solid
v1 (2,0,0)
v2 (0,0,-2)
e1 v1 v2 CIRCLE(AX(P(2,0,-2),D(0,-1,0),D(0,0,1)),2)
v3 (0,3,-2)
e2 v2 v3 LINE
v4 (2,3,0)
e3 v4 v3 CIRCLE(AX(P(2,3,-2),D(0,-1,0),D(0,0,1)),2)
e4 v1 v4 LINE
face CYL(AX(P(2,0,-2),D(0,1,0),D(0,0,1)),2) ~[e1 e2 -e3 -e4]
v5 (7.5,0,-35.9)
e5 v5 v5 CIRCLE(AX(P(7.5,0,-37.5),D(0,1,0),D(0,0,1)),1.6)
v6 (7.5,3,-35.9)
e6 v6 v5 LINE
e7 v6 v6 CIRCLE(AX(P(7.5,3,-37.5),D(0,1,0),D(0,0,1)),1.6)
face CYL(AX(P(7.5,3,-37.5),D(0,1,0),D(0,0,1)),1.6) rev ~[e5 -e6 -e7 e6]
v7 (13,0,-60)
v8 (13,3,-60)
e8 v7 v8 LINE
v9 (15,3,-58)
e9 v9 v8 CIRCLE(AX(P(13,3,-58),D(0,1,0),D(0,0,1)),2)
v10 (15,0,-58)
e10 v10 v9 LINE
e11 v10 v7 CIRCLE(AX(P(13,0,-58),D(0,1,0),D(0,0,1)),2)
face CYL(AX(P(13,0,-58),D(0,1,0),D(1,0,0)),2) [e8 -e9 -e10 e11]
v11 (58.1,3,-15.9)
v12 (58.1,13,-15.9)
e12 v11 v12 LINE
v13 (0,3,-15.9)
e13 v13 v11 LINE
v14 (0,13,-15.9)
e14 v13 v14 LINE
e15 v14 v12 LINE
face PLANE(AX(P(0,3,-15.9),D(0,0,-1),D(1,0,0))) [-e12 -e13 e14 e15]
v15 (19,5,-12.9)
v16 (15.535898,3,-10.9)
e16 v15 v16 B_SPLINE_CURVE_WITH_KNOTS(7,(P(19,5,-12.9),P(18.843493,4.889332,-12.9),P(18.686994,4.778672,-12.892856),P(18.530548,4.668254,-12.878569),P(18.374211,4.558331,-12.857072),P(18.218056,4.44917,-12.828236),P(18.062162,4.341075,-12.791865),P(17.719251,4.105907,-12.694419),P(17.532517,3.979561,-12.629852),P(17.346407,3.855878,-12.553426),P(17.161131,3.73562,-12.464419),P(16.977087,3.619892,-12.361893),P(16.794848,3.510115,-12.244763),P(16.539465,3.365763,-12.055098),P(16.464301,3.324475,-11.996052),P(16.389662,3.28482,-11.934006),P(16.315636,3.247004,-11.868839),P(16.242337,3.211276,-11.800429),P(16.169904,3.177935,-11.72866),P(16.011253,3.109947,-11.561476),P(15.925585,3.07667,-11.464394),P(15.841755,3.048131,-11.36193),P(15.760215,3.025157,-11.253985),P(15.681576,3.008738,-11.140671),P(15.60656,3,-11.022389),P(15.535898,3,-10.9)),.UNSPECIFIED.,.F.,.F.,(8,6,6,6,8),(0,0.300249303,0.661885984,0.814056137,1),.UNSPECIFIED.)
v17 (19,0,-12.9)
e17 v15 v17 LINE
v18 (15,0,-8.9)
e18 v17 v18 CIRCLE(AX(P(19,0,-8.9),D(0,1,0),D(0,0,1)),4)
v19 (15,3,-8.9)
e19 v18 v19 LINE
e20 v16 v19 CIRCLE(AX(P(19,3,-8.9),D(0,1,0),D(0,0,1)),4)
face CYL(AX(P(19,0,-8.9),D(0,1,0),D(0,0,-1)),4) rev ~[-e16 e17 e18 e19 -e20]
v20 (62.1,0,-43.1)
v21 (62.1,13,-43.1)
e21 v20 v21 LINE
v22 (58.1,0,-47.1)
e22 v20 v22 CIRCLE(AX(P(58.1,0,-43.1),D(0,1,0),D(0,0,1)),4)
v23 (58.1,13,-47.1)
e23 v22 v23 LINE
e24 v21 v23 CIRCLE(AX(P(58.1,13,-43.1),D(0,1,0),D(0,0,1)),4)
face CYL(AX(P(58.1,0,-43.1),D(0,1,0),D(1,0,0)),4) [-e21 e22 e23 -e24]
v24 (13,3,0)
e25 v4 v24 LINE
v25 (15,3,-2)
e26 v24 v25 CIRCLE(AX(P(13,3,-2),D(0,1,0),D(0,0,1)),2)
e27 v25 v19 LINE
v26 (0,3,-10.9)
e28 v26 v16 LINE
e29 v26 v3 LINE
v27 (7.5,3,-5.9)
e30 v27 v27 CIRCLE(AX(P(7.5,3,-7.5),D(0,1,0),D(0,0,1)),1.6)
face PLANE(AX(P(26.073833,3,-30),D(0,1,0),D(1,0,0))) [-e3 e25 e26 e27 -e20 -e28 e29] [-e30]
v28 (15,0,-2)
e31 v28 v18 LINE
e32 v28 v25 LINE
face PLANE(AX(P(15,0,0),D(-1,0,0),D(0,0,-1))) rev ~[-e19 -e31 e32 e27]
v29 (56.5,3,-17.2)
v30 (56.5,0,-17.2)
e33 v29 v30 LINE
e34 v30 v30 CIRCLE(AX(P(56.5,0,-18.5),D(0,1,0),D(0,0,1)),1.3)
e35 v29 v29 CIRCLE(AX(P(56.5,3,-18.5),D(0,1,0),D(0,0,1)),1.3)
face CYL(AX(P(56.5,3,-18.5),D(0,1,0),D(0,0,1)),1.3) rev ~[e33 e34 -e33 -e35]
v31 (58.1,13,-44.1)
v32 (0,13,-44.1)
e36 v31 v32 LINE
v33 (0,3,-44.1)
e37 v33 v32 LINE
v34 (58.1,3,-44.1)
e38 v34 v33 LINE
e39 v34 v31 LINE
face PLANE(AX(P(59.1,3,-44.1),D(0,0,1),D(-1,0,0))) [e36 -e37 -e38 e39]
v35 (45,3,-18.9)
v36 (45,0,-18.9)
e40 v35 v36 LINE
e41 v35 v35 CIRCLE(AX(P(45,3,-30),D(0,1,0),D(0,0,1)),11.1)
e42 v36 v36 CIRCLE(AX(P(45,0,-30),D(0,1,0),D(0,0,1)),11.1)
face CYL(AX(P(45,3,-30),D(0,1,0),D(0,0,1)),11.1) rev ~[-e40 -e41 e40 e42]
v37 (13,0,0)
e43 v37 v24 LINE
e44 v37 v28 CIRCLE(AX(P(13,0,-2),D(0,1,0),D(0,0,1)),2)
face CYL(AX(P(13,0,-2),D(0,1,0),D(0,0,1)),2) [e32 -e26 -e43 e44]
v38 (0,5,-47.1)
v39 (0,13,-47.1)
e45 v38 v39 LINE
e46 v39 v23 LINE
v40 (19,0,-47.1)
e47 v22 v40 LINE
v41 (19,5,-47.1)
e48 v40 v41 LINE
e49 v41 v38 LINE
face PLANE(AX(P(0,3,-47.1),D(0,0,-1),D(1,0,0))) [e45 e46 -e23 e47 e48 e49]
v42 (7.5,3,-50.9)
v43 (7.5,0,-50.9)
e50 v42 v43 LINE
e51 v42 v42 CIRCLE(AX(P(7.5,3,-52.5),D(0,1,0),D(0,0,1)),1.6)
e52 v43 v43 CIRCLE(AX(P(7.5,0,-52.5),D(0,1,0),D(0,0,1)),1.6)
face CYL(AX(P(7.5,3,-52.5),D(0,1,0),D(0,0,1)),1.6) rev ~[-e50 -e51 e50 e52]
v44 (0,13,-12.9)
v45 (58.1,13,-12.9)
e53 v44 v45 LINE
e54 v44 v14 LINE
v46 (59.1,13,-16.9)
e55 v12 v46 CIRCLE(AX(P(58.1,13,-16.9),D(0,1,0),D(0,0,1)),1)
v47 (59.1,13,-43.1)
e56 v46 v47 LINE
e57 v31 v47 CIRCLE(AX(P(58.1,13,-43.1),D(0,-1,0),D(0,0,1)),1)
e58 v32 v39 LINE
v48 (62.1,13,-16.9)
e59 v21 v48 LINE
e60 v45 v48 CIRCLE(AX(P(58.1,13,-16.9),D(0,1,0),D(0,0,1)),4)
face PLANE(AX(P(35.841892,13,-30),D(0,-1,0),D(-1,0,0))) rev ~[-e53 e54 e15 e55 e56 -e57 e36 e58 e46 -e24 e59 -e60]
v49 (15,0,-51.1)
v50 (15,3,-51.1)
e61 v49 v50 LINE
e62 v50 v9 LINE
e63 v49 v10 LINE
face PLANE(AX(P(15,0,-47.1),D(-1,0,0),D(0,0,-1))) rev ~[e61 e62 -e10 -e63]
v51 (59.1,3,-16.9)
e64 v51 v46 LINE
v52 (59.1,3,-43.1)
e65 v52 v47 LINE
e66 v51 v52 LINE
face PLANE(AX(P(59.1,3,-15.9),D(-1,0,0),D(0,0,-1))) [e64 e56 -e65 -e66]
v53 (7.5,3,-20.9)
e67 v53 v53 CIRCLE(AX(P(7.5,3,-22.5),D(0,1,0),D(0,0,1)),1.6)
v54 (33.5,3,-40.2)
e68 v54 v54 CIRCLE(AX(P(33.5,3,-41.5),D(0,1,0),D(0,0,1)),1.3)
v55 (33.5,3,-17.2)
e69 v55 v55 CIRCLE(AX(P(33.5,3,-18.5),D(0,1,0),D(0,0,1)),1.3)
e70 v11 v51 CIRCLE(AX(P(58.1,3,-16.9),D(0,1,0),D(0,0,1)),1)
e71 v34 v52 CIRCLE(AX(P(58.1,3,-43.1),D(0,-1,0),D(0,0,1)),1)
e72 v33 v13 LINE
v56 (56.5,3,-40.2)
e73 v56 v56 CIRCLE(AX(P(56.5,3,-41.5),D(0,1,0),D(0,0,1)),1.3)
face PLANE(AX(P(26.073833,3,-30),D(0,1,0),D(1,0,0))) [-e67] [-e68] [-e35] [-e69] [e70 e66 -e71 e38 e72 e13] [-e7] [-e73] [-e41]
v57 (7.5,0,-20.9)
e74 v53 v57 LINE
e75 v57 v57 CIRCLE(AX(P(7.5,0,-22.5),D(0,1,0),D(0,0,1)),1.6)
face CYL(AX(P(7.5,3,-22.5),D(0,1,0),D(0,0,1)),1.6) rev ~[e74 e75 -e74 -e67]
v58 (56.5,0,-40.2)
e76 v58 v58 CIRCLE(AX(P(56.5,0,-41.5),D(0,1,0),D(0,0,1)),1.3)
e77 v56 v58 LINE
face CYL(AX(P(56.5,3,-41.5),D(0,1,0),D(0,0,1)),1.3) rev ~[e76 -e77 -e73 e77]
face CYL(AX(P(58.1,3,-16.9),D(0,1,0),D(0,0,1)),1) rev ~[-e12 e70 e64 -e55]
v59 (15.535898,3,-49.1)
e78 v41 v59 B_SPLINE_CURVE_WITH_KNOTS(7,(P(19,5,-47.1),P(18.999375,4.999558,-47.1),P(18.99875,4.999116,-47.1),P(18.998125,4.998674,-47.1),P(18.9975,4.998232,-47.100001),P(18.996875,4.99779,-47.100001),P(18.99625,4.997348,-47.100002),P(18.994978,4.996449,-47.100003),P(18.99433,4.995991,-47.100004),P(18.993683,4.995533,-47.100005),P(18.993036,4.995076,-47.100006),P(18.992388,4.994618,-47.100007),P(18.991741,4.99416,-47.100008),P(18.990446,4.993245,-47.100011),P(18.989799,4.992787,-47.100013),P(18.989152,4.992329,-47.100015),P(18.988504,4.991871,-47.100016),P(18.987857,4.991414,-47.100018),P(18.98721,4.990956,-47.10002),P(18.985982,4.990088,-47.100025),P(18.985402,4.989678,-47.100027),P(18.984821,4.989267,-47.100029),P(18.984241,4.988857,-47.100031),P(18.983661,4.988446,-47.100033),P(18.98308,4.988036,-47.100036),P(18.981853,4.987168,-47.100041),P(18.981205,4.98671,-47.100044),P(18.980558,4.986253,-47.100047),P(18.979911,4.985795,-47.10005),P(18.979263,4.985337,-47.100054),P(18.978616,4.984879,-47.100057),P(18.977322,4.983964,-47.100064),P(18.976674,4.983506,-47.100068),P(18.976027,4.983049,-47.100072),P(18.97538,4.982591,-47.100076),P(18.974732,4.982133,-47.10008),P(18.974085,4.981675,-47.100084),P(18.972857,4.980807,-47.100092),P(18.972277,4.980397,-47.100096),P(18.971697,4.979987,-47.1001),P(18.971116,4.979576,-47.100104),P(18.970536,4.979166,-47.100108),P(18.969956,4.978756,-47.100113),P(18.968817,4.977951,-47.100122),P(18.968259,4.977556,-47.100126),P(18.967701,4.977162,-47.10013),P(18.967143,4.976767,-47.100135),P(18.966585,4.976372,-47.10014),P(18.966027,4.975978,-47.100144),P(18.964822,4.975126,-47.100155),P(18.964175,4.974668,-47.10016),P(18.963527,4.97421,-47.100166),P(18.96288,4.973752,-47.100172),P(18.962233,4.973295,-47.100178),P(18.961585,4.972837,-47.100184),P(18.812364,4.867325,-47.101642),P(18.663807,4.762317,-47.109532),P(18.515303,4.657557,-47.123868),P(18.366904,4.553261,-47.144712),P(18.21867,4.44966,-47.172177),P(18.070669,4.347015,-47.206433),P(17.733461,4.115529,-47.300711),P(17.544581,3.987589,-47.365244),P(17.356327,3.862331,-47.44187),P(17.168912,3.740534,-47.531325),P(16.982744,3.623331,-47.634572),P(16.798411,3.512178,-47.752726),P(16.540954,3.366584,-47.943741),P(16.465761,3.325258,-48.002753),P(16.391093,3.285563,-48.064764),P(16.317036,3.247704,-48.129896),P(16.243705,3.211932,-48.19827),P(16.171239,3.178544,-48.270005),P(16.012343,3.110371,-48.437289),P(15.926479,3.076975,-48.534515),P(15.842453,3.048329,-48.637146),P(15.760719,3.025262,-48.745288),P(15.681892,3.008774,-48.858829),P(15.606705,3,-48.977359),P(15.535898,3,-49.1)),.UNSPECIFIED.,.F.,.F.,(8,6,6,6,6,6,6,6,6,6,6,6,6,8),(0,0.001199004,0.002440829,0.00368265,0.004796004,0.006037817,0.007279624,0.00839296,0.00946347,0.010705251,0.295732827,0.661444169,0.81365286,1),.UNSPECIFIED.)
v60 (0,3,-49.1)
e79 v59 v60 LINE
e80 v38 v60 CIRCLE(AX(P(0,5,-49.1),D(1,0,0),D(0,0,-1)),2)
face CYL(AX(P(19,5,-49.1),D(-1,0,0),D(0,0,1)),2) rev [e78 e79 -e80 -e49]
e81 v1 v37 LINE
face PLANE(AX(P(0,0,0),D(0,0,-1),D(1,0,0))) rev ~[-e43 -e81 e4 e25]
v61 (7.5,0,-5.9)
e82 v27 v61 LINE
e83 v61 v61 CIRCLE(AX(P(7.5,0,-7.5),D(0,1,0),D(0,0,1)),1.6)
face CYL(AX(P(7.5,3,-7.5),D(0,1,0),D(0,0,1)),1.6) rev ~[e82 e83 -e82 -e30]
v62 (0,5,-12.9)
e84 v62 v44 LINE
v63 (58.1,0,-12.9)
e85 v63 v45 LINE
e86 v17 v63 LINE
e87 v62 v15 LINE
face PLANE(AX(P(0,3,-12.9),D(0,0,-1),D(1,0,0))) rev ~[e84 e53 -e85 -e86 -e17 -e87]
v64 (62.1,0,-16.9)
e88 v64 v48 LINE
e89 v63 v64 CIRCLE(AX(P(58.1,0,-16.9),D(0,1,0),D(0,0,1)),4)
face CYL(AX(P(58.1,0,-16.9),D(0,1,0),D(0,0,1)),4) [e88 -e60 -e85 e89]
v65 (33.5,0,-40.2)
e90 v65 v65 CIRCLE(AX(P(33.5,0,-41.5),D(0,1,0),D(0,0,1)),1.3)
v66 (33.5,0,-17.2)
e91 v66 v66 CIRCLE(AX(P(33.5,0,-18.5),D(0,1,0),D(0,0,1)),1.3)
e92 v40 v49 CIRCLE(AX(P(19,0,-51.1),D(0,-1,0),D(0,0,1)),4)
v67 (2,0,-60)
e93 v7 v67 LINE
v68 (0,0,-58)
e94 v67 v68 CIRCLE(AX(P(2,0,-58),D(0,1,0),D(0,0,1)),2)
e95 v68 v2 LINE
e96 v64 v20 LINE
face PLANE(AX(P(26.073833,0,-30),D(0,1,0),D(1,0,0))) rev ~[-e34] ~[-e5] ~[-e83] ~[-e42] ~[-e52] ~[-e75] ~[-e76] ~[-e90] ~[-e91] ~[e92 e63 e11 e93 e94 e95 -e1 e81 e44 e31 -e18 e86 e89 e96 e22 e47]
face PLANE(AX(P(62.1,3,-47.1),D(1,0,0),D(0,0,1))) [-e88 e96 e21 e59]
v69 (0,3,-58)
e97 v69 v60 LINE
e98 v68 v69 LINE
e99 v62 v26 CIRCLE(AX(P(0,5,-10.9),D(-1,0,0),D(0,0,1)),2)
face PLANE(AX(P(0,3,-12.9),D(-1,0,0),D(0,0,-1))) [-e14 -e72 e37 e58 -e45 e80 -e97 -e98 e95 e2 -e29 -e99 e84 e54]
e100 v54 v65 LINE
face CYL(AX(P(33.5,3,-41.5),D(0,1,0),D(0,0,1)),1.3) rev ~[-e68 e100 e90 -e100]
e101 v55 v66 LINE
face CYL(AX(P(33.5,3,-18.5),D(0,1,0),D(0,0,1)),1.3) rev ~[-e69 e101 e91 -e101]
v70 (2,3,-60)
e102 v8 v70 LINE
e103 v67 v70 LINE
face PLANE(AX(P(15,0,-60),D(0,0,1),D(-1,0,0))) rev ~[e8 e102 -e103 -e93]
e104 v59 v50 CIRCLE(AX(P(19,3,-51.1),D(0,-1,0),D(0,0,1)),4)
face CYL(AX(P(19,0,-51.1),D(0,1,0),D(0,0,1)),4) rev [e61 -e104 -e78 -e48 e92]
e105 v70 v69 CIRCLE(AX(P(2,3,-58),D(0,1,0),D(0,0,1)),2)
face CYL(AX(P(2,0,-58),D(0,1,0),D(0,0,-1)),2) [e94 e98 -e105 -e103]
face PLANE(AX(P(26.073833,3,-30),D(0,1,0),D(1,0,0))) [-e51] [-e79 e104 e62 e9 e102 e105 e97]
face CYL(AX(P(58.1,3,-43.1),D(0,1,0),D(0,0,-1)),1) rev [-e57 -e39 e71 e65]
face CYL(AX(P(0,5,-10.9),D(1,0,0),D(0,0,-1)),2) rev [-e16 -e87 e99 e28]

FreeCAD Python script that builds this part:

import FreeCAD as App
import Part
import Sketcher

V = App.Vector


def edges_at(feature, points):
    """Names of the edges that pass closest to the given points."""
    edges = feature.Shape.Edges
    near = lambda p: min(range(len(edges)), key=lambda i: edges[i].distToShape(Part.Vertex(*p))[0])
    return sorted({f"Edge{near(p) + 1}" for p in points})


def add_polygon(sketch, points):
    """Adds a closed chain of lines whose ends are joined by coincident constraints."""
    first, n = sketch.GeometryCount, len(points)
    for a, b in zip(points, points[1:] + points[:1]):
        sketch.addGeometry(Part.LineSegment(App.Vector(*a, 0), App.Vector(*b, 0)), False)
    for i in range(n):
        sketch.addConstraint(Sketcher.Constraint("Coincident", first + i, 2, first + (i + 1) % n, 1))

doc = App.newDocument("Part")
body = doc.addObject("PartDesign::Body", "Body")

# Sketch on XZ plane
sketch1 = body.newObject("Sketcher::SketchObject", "Sketch")
sketch1.AttachmentSupport = (doc.getObject("XZ_Plane"), [""])
sketch1.MapMode = "FlatFace"
add_polygon(sketch1, [(0, 0), (15, 0), (15, -13), (62, -13), (62, -47), (15, -47), (15, -60), (0, -60)])  # lines 0-7
sketch1.addConstraint(Sketcher.Constraint("Horizontal", 0))
sketch1.addConstraint(Sketcher.Constraint("Vertical", 1))
sketch1.addConstraint(Sketcher.Constraint("Horizontal", 2))
sketch1.addConstraint(Sketcher.Constraint("Vertical", 3))
sketch1.addConstraint(Sketcher.Constraint("Horizontal", 4))
sketch1.addConstraint(Sketcher.Constraint("Vertical", 5))
sketch1.addConstraint(Sketcher.Constraint("Horizontal", 6))
sketch1.addConstraint(Sketcher.Constraint("Vertical", 7))
sketch1.addConstraint(Sketcher.Constraint("Coincident", 7, 2, -1, 1))
sketch1.addConstraint(Sketcher.Constraint("Vertical", 1, 2, 4, 2))
sketch1.addConstraint(Sketcher.Constraint("Equal", 1, 5))
sketch1.addConstraint(Sketcher.Constraint("DistanceX", 0, 1, 0, 2, 15.0))
sketch1.addConstraint(Sketcher.Constraint("DistanceY", 7, 1, 7, 2, 60.0))
sketch1.addConstraint(Sketcher.Constraint("DistanceX", 2, 1, 2, 2, 47.1))
sketch1.addConstraint(Sketcher.Constraint("DistanceY", 1, 2, 1, 1, 12.9))
pad1 = body.newObject("PartDesign::Pad", "Pad")
pad1.Profile = sketch1
pad1.Length = 3
pad1.Reversed = True

# Sketch on XZ plane
sketch2 = body.newObject("Sketcher::SketchObject", "Sketch001")
sketch2.AttachmentSupport = (doc.getObject("XZ_Plane"), [""])
sketch2.MapMode = "FlatFace"
sketch2.AttachmentOffset = App.Placement(V(0, 0, -3), App.Rotation())
sketch2.addGeometry(Part.Circle(V(7.5, -52.5, 0), V(0, 0, 1), 1.6), False)
sketch2.addGeometry(Part.Circle(V(7.5, -37.5, 0), V(0, 0, 1), 1.6), False)
sketch2.addGeometry(Part.Circle(V(7.5, -7.5, 0), V(0, 0, 1), 1.6), False)
sketch2.addGeometry(Part.Circle(V(7.5, -22.5, 0), V(0, 0, 1), 1.6), False)
sketch2.addConstraint(Sketcher.Constraint("Equal", 0, 1))
sketch2.addConstraint(Sketcher.Constraint("Equal", 1, 2))
sketch2.addConstraint(Sketcher.Constraint("Equal", 2, 3))
sketch2.addConstraint(Sketcher.Constraint("Vertical", 0, 3, 1, 3))
sketch2.addConstraint(Sketcher.Constraint("Vertical", 1, 3, 2, 3))
sketch2.addConstraint(Sketcher.Constraint("Vertical", 2, 3, 3, 3))
sketch2.addConstraint(Sketcher.Constraint("Diameter", 0, 3.2))
sketch2.addConstraint(Sketcher.Constraint("DistanceY", 0, 3, 1, 3, 15.0))
sketch2.addConstraint(Sketcher.Constraint("DistanceY", 1, 3, 2, 3, 30.0))
sketch2.addConstraint(Sketcher.Constraint("DistanceY", 1, 3, 3, 3, 15.0))
sketch2.addConstraint(Sketcher.Constraint("DistanceX", -1, 1, 0, 3, 7.5))
sketch2.addConstraint(Sketcher.Constraint("DistanceY", 0, 3, -1, 1, 52.5))
pocket1 = body.newObject("PartDesign::Pocket", "Pocket")
pocket1.Profile = sketch2
pocket1.Type = "ThroughAll"
pocket1.Reversed = True

# Sketch on XZ plane
sketch3 = body.newObject("Sketcher::SketchObject", "Sketch002")
sketch3.AttachmentSupport = (doc.getObject("XZ_Plane"), [""])
sketch3.MapMode = "FlatFace"
sketch3.AttachmentOffset = App.Placement(V(0, 0, -3), App.Rotation())
add_polygon(sketch3, [(0, -12.9), (62.1, -12.9), (62.1, -47.1), (0, -47.1), (0, -44.1), (59.1, -44.1), (59.1, -15.9), (0, -15.9)])  # lines 0-7
sketch3.addConstraint(Sketcher.Constraint("Horizontal", 0))
sketch3.addConstraint(Sketcher.Constraint("Vertical", 1))
sketch3.addConstraint(Sketcher.Constraint("Horizontal", 2))
sketch3.addConstraint(Sketcher.Constraint("Vertical", 3))
sketch3.addConstraint(Sketcher.Constraint("Horizontal", 4))
sketch3.addConstraint(Sketcher.Constraint("Vertical", 5))
sketch3.addConstraint(Sketcher.Constraint("Horizontal", 6))
sketch3.addConstraint(Sketcher.Constraint("Vertical", 7))
sketch3.addConstraint(Sketcher.Constraint("PointOnObject", 2, 2, -2))
sketch3.addConstraint(Sketcher.Constraint("PointOnObject", 6, 2, -2))
sketch3.addConstraint(Sketcher.Constraint("Equal", 3, 7))
sketch3.addConstraint(Sketcher.Constraint("DistanceY", 3, 1, 3, 2, 3.0))
sketch3.addConstraint(Sketcher.Constraint("DistanceX", 0, 1, 0, 2, 62.1))
sketch3.addConstraint(Sketcher.Constraint("DistanceX", 4, 1, 4, 2, 59.1))
sketch3.addConstraint(Sketcher.Constraint("DistanceY", 1, 2, 1, 1, 34.2))
sketch3.addConstraint(Sketcher.Constraint("DistanceY", 0, 2, -1, 1, 12.9))
pad2 = body.newObject("PartDesign::Pad", "Pad001")
pad2.Profile = sketch3
pad2.Length = 10
pad2.Reversed = True

# Sketch on XZ plane
sketch4 = body.newObject("Sketcher::SketchObject", "Sketch003")
sketch4.AttachmentSupport = (doc.getObject("XZ_Plane"), [""])
sketch4.MapMode = "FlatFace"
sketch4.AttachmentOffset = App.Placement(V(0, 0, -3), App.Rotation())
sketch4.addGeometry(Part.Circle(V(45, -30, 0), V(0, 0, 1), 11), False)
sketch4.addConstraint(Sketcher.Constraint("Diameter", 0, 22.2))
sketch4.addConstraint(Sketcher.Constraint("DistanceX", -1, 1, 0, 3, 45.0))
sketch4.addConstraint(Sketcher.Constraint("DistanceY", 0, 3, -1, 1, 30.0))
pocket2 = body.newObject("PartDesign::Pocket", "Pocket001")
pocket2.Profile = sketch4
pocket2.Type = "UpToFirst"
pocket2.Reversed = True

# Sketch on XZ plane
sketch5 = body.newObject("Sketcher::SketchObject", "Sketch004")
sketch5.AttachmentSupport = (doc.getObject("XZ_Plane"), [""])
sketch5.MapMode = "FlatFace"
sketch5.AttachmentOffset = App.Placement(V(0, 0, -3), App.Rotation())
sketch5.addGeometry(Part.Circle(V(56.5, -41.5, 0), V(0, 0, 1), 1.3), False)
sketch5.addConstraint(Sketcher.Constraint("Diameter", 0, 2.6))
sketch5.addConstraint(Sketcher.Constraint("DistanceX", -1, 1, 0, 3, 56.5))
sketch5.addConstraint(Sketcher.Constraint("DistanceY", 0, 3, -1, 1, 41.5))
pocket3 = body.newObject("PartDesign::Pocket", "Pocket002")
pocket3.Profile = sketch5
pocket3.Type = "UpToFirst"
pocket3.Reversed = True

# Sketch on XZ plane
sketch6 = body.newObject("Sketcher::SketchObject", "Sketch005")
sketch6.AttachmentSupport = (doc.getObject("XZ_Plane"), [""])
sketch6.MapMode = "FlatFace"
sketch6.AttachmentOffset = App.Placement(V(0, 0, -3), App.Rotation())
sketch6.addGeometry(Part.Circle(V(33.5, -41.5, 0), V(0, 0, 1), 1.3), False)
sketch6.addConstraint(Sketcher.Constraint("Diameter", 0, 2.6))
sketch6.addConstraint(Sketcher.Constraint("DistanceX", -1, 1, 0, 3, 33.5))
sketch6.addConstraint(Sketcher.Constraint("DistanceY", 0, 3, -1, 1, 41.5))
pocket4 = body.newObject("PartDesign::Pocket", "Pocket003")
pocket4.Profile = sketch6
pocket4.Type = "UpToFirst"
pocket4.Reversed = True

# Sketch on XZ plane
sketch7 = body.newObject("Sketcher::SketchObject", "Sketch006")
sketch7.AttachmentSupport = (doc.getObject("XZ_Plane"), [""])
sketch7.MapMode = "FlatFace"
sketch7.AttachmentOffset = App.Placement(V(0, 0, -3), App.Rotation())
sketch7.addGeometry(Part.Circle(V(33.5, -18.5, 0), V(0, 0, 1), 1.3), False)
sketch7.addConstraint(Sketcher.Constraint("Diameter", 0, 2.6))
sketch7.addConstraint(Sketcher.Constraint("DistanceX", -1, 1, 0, 3, 33.5))
sketch7.addConstraint(Sketcher.Constraint("DistanceY", 0, 3, -1, 1, 18.5))
pocket5 = body.newObject("PartDesign::Pocket", "Pocket004")
pocket5.Profile = sketch7
pocket5.Type = "UpToFirst"
pocket5.Reversed = True

# Sketch on XZ plane
sketch8 = body.newObject("Sketcher::SketchObject", "Sketch007")
sketch8.AttachmentSupport = (doc.getObject("XZ_Plane"), [""])
sketch8.MapMode = "FlatFace"
sketch8.AttachmentOffset = App.Placement(V(0, 0, -3), App.Rotation())
sketch8.addGeometry(Part.Circle(V(56.5, -18.5, 0), V(0, 0, 1), 1.3), False)
sketch8.addConstraint(Sketcher.Constraint("Diameter", 0, 2.6))
sketch8.addConstraint(Sketcher.Constraint("DistanceX", -1, 1, 0, 3, 56.5))
sketch8.addConstraint(Sketcher.Constraint("DistanceY", 0, 3, -1, 1, 18.5))
pocket6 = body.newObject("PartDesign::Pocket", "Pocket005")
pocket6.Profile = sketch8
pocket6.Type = "UpToFirst"
pocket6.Reversed = True
doc.recompute()

fillet = body.newObject("PartDesign::Fillet", "Fillet")
fillet.Base = (pocket6, edges_at(pocket6, [(59.1, 8, -44.1), (59.1, 8, -15.9)]))
fillet.Radius = 1
doc.recompute()

fillet2 = body.newObject("PartDesign::Fillet", "Fillet001")
fillet2.Base = (fillet, edges_at(fillet, [(62.1, 6.5, -47.1), (62.1, 6.5, -12.9)]))
fillet2.Radius = 4
doc.recompute()

fillet3 = body.newObject("PartDesign::Fillet", "Fillet002")
fillet3.Base = (fillet2, edges_at(fillet2, [(15, 1.5, -47.1), (15, 1.5, -12.9)]))
fillet3.Radius = 4
doc.recompute()

fillet4 = body.newObject("PartDesign::Fillet", "Fillet003")
fillet4.Base = (fillet3, edges_at(fillet3, [(9.5, 3, -47.1), (9.5, 3, -12.9)]))
fillet4.Radius = 2
doc.recompute()

fillet5 = body.newObject("PartDesign::Fillet", "Fillet004")
fillet5.Base = (fillet4, edges_at(fillet4, [
    (0, 1.5, -60),
    (15, 1.5, -60),
    (15, 1.5, 0),
    (0, 1.5, 0),
]))
fillet5.Radius = 2

doc.recompute()
